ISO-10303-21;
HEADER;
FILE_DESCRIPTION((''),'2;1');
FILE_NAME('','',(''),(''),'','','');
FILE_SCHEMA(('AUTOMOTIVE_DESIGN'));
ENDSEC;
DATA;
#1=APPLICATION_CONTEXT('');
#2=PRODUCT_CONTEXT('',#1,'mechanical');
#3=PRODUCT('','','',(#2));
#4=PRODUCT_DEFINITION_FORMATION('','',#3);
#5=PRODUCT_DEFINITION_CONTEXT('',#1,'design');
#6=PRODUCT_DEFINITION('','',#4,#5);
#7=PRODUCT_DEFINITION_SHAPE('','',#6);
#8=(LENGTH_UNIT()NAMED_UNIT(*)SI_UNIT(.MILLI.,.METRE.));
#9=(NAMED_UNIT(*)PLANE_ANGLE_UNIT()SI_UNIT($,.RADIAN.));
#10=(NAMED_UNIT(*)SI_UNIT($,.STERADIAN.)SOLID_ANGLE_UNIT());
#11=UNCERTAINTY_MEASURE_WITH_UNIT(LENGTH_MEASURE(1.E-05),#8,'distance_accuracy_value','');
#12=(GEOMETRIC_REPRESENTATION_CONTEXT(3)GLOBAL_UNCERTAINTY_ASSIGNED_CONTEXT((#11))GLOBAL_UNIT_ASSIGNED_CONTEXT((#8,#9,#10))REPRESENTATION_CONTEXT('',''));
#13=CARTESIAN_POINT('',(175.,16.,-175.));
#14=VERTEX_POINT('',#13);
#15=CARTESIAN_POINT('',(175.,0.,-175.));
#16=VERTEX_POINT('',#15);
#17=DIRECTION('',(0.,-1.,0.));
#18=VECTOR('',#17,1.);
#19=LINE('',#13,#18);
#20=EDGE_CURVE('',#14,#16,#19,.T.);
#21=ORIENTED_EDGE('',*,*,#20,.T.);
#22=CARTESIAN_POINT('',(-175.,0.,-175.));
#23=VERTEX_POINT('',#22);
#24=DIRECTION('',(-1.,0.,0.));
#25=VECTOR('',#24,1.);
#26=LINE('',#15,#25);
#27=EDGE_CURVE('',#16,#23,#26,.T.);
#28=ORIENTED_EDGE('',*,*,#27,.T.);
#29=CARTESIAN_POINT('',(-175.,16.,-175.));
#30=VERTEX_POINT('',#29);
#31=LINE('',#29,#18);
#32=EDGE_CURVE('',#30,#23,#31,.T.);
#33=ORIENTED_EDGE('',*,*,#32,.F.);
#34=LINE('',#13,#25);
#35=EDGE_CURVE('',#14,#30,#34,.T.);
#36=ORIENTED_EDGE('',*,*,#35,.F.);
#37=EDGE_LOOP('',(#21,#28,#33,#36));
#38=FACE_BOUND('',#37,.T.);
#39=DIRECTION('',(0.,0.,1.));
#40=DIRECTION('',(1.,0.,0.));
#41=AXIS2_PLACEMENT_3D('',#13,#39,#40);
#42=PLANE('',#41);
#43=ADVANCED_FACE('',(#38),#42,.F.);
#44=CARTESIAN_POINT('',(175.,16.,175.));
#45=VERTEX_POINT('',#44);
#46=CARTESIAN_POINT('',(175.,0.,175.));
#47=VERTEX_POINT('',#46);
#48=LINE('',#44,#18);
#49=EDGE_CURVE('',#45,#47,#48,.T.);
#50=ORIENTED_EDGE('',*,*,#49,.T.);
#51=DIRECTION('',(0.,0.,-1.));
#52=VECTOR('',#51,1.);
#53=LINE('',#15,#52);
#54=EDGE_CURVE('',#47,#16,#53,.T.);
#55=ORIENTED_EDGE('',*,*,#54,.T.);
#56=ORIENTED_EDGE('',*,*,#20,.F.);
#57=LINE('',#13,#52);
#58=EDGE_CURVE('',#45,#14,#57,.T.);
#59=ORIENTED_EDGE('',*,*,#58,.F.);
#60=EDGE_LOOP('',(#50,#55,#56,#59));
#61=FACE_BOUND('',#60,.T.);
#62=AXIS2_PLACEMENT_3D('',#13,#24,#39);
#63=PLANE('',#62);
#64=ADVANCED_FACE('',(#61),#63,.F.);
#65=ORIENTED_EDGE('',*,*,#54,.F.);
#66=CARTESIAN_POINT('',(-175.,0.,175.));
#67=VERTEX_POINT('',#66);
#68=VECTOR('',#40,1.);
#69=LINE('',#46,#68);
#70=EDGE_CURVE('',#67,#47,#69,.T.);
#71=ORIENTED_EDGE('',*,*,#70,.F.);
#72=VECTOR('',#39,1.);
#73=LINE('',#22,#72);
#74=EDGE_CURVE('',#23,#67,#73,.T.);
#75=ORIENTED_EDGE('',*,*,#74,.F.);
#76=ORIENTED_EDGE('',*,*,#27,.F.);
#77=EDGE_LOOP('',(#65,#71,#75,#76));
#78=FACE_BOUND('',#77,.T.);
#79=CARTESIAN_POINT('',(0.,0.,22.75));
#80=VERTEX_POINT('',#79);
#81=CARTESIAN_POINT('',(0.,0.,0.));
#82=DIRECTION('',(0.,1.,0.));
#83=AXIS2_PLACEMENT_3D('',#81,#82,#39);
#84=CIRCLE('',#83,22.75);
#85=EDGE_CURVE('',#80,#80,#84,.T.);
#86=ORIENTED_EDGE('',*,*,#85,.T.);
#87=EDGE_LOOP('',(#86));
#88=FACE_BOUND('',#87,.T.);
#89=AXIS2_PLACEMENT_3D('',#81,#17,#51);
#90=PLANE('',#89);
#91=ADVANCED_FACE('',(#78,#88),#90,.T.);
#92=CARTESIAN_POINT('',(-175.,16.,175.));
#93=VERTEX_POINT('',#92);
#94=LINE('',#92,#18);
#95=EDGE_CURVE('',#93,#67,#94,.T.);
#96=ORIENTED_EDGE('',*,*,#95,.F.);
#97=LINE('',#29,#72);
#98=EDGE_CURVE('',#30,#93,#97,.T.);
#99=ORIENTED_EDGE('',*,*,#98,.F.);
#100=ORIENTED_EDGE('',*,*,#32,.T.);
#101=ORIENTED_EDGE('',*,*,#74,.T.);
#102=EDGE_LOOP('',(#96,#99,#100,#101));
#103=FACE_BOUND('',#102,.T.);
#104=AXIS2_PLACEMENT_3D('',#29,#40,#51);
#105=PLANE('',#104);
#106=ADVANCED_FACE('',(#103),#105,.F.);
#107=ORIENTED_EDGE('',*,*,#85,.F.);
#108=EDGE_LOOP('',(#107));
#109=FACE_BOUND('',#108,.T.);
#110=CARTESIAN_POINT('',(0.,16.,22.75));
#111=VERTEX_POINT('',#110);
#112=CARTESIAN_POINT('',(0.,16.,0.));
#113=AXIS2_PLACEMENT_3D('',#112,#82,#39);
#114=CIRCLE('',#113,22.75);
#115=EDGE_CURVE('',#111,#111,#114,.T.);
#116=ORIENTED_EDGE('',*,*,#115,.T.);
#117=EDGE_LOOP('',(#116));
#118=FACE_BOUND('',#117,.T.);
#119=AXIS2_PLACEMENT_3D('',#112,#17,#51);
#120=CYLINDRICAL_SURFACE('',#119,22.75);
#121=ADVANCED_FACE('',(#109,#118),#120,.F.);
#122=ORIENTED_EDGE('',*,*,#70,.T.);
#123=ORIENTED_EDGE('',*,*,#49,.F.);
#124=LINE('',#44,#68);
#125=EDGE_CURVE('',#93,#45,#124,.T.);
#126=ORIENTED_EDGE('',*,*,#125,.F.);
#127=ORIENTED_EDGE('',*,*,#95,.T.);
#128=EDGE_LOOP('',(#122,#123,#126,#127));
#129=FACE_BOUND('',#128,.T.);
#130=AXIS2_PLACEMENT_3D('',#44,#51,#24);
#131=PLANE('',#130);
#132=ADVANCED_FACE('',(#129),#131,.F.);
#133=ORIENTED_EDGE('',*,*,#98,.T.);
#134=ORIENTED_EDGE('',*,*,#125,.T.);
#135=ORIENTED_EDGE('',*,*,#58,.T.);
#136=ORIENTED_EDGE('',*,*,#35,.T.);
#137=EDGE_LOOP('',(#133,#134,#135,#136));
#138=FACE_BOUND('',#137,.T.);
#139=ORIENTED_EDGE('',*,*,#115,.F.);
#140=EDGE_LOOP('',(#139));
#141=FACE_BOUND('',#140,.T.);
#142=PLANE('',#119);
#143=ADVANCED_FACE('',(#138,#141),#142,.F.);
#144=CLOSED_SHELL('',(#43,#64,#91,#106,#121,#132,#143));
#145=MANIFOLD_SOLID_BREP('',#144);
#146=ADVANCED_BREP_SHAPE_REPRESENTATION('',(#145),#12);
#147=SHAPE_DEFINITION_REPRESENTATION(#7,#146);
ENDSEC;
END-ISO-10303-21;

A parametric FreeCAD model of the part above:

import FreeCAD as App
import Part
import Sketcher
from FreeCAD import Vector


def add_polygon(sketch, points):
    """Adds a closed chain of lines whose ends are joined by coincident constraints."""
    first, n = sketch.GeometryCount, len(points)
    for a, b in zip(points, points[1:] + points[:1]):
        sketch.addGeometry(Part.LineSegment(App.Vector(*a, 0), App.Vector(*b, 0)), False)
    for i in range(n):
        sketch.addConstraint(Sketcher.Constraint("Coincident", first + i, 2, first + (i + 1) % n, 1))

doc = App.newDocument("Part")
body = doc.addObject("PartDesign::Body", "Body")

# Sketch on XZ plane
sketch1 = doc.addObject("Sketcher::SketchObject", "Sketch")
body.addObject(sketch1)
sketch1.AttachmentSupport = (doc.XZ_Plane, [""])
sketch1.MapMode = "FlatFace"
add_polygon(sketch1, [(-175, -175), (-175, 175), (175, 175), (175, -175)])  # lines 0-3
sketch1.addGeometry(Part.Circle(Vector(0, 0, 0), Vector(0, 0, 1), 23), False)  # 4
sketch1.addConstraint([
    Sketcher.Constraint("Vertical", 0),
    Sketcher.Constraint("Horizontal", 1),
    Sketcher.Constraint("Vertical", 2),
    Sketcher.Constraint("Horizontal", 3),
    Sketcher.Constraint("Coincident", 4, 3, -1, 1),
    Sketcher.Constraint("Symmetric", 0, 2, 2, 2, -1, 1),
    Sketcher.Constraint("Equal", 3, 0),
    Sketcher.Constraint("Diameter", 4, 45.5),
    Sketcher.Constraint("DistanceX", 1, 1, 1, 2, 350.0),
])
pad1 = doc.addObject("PartDesign::Pad", "Pad")
body.addObject(pad1)
pad1.Profile = sketch1
pad1.Length = 16
pad1.Reversed = True

doc.recompute()
